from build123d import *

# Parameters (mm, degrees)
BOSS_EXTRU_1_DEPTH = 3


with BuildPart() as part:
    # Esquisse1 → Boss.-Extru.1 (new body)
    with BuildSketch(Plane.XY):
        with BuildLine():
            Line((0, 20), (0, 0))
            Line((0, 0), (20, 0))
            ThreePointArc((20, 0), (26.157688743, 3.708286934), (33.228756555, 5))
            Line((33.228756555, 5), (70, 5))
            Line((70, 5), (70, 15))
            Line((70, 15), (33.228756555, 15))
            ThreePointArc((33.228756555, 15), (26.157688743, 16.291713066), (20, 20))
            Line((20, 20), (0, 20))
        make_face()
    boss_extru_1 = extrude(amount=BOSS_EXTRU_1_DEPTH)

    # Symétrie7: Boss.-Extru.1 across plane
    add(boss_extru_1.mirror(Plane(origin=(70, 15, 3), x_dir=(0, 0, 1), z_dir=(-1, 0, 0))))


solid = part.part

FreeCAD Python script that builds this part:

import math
import FreeCAD as App
import Part
import Sketcher
from FreeCAD import Vector

doc = App.newDocument("Part")
body = doc.addObject("PartDesign::Body", "Body")

# Sketch on XY plane
sketch1 = doc.addObject("Sketcher::SketchObject", "Sketch")
body.addObject(sketch1)
sketch1.AttachmentSupport = (doc.XY_Plane, [""])
sketch1.MapMode = "FlatFace"
sketch1.addGeometry([
    Part.LineSegment(Vector(0, 20, 0), Vector(0, 0, 0)),  # 0
    Part.LineSegment(Vector(0, 0, 0), Vector(20, 0, 0)),  # 1
    Part.ArcOfCircle(Part.Circle(Vector(33, -15, 0), Vector(0, 0, 1), 20), math.radians(90), math.radians(131)),  # 2
    Part.LineSegment(Vector(33, 5, 0), Vector(70, 5, 0)),  # 3
    Part.LineSegment(Vector(70, 5, 0), Vector(70, 15, 0)),  # 4
    Part.LineSegment(Vector(70, 15, 0), Vector(33, 15, 0)),  # 5
    Part.ArcOfCircle(Part.Circle(Vector(33, 35, 0), Vector(0, 0, 1), 20), math.radians(-131), math.radians(-90)),  # 6
    Part.LineSegment(Vector(20, 20, 0), Vector(0, 20, 0)),  # 7
], False)
sketch1.addConstraint([
    Sketcher.Constraint("Coincident", 0, 2, 1, 1),
    Sketcher.Constraint("Coincident", 1, 2, 2, 2),
    Sketcher.Constraint("Tangent", 2, 1, 3, 1),
    Sketcher.Constraint("Coincident", 3, 2, 4, 1),
    Sketcher.Constraint("Coincident", 4, 2, 5, 1),
    Sketcher.Constraint("Tangent", 5, 2, 6, 2),
    Sketcher.Constraint("Coincident", 6, 1, 7, 1),
    Sketcher.Constraint("Coincident", 7, 2, 0, 1),
    Sketcher.Constraint("Vertical", 0),
    Sketcher.Constraint("Horizontal", 1),
    Sketcher.Constraint("Horizontal", 3),
    Sketcher.Constraint("Vertical", 4),
    Sketcher.Constraint("Horizontal", 5),
    Sketcher.Constraint("Horizontal", 7),
    Sketcher.Constraint("Coincident", 0, 2, -1, 1),
    Sketcher.Constraint("Equal", 2, 6),
    Sketcher.Constraint("Vertical", 2, 3, 6, 3),
    Sketcher.Constraint("Vertical", 1, 2, 6, 1),
    Sketcher.Constraint("Equal", 7, 0),
    Sketcher.Constraint("Radius", 2, 20.0),
    Sketcher.Constraint("DistanceX", 1, 1, 1, 2, 20.0),
    Sketcher.Constraint("DistanceY", 4, 1, 4, 2, 10.0),
    Sketcher.Constraint("DistanceX", -1, 1, 3, 2, 70.0),
])
pad1 = doc.addObject("PartDesign::Pad", "Pad")
body.addObject(pad1)
pad1.Profile = sketch1
pad1.Length = 3
doc.recompute()

datumplane = doc.addObject("PartDesign::Plane", "DatumPlane")
body.addObject(datumplane)
datumplane.AttachmentSupport = (doc.YZ_Plane, [""])
datumplane.MapMode = "FlatFace"
datumplane.AttachmentOffset = App.Placement(Vector(0, 0, 70), App.Rotation())
mirrored = doc.addObject("PartDesign::Mirrored", "Mirrored")
body.addObject(mirrored)
mirrored.Originals = [pad1]
mirrored.MirrorPlane = (datumplane, [""])
body.Tip = mirrored

doc.recompute()
